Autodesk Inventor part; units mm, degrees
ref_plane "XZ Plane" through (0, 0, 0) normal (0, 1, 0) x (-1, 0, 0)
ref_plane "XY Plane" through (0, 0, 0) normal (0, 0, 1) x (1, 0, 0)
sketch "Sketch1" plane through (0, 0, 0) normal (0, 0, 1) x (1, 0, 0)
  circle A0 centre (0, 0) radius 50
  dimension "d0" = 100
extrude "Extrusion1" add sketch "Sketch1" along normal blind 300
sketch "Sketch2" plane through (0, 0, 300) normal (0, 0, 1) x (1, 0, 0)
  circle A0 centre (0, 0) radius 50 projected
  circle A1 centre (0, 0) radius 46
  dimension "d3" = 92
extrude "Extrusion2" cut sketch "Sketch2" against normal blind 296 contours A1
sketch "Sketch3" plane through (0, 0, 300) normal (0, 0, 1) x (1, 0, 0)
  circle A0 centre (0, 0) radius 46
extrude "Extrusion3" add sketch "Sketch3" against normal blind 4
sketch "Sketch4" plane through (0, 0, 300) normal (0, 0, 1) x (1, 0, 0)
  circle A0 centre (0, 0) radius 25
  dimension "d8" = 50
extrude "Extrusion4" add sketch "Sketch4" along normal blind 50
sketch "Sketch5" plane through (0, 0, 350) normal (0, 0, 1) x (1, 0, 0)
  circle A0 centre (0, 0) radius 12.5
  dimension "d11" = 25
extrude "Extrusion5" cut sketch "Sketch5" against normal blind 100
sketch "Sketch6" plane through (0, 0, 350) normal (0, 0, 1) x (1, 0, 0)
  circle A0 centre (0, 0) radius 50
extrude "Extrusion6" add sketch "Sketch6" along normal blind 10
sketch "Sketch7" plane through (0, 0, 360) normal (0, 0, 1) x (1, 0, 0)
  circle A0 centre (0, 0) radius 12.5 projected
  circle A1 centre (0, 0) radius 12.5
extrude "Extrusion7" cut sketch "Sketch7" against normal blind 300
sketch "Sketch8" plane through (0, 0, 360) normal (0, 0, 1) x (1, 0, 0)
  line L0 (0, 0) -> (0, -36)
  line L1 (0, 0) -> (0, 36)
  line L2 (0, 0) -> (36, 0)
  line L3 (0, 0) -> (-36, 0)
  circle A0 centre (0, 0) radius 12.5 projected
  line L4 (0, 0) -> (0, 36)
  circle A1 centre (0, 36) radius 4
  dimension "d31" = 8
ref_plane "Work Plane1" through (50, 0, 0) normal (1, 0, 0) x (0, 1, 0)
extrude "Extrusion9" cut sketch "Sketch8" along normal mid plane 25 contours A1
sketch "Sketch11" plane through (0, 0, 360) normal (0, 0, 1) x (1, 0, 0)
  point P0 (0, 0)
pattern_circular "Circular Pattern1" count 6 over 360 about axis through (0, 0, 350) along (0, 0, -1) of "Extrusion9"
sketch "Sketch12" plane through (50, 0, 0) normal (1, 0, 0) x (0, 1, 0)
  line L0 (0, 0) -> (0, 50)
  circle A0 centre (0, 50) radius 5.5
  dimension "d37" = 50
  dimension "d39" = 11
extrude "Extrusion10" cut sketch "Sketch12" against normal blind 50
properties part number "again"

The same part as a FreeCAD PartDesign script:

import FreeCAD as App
import Part
import Sketcher
Q = App.Units.Quantity

doc = App.newDocument("Part")
body = doc.addObject("PartDesign::Body", "Body")

# Sketch on XY plane
sketch1 = body.newObject("Sketcher::SketchObject", "Sketch")
sketch1.AttachmentSupport = (doc.getObject("XY_Plane"), [""])
sketch1.MapMode = "FlatFace"
sketch1.addGeometry(Part.Circle(App.Vector(0, 0, 0), App.Vector(0, 0, 1), 50), False)
sketch1.addConstraint(Sketcher.Constraint("Coincident", 0, 3, -1, 1))
sketch1.addConstraint(Sketcher.Constraint("Diameter", 0, Q("100 mm")))
pad1 = body.newObject("PartDesign::Pad", "Pad")
pad1.Profile = sketch1
pad1.Length = 300

# Sketch on XY plane
sketch2 = body.newObject("Sketcher::SketchObject", "Sketch001")
sketch2.AttachmentSupport = (doc.getObject("XY_Plane"), [""])
sketch2.MapMode = "FlatFace"
sketch2.AttachmentOffset = App.Placement(App.Vector(0, 0, 300), App.Rotation())
sketch2.addGeometry(Part.Circle(App.Vector(0, 0, 0), App.Vector(0, 0, 1), 46), False)
sketch2.addConstraint(Sketcher.Constraint("Coincident", 0, 3, -1, 1))
sketch2.addConstraint(Sketcher.Constraint("Diameter", 0, Q("92 mm")))
pocket1 = body.newObject("PartDesign::Pocket", "Pocket")
pocket1.Profile = sketch2
pocket1.Length = 296

# Sketch on XY plane
sketch3 = body.newObject("Sketcher::SketchObject", "Sketch002")
sketch3.AttachmentSupport = (doc.getObject("XY_Plane"), [""])
sketch3.MapMode = "FlatFace"
sketch3.AttachmentOffset = App.Placement(App.Vector(0, 0, 300), App.Rotation())
sketch3.addGeometry(Part.Circle(App.Vector(0, 0, 0), App.Vector(0, 0, 1), 46), False)
sketch3.addConstraint(Sketcher.Constraint("Coincident", 0, 3, -1, 1))
sketch3.addConstraint(Sketcher.Constraint("Diameter", 0, Q("92 mm")))
pad2 = body.newObject("PartDesign::Pad", "Pad001")
pad2.Profile = sketch3
pad2.Length = 4
pad2.Reversed = True

# Sketch on XY plane
sketch4 = body.newObject("Sketcher::SketchObject", "Sketch003")
sketch4.AttachmentSupport = (doc.getObject("XY_Plane"), [""])
sketch4.MapMode = "FlatFace"
sketch4.AttachmentOffset = App.Placement(App.Vector(0, 0, 300), App.Rotation())
sketch4.addGeometry(Part.Circle(App.Vector(0, 0, 0), App.Vector(0, 0, 1), 25), False)
sketch4.addConstraint(Sketcher.Constraint("Coincident", 0, 3, -1, 1))
sketch4.addConstraint(Sketcher.Constraint("Diameter", 0, Q("50 mm")))
pad3 = body.newObject("PartDesign::Pad", "Pad002")
pad3.Profile = sketch4
pad3.Length = 50

# Sketch on XY plane
sketch5 = body.newObject("Sketcher::SketchObject", "Sketch004")
sketch5.AttachmentSupport = (doc.getObject("XY_Plane"), [""])
sketch5.MapMode = "FlatFace"
sketch5.AttachmentOffset = App.Placement(App.Vector(0, 0, 350), App.Rotation())
sketch5.addGeometry(Part.Circle(App.Vector(0, 0, 0), App.Vector(0, 0, 1), 12), False)
sketch5.addConstraint(Sketcher.Constraint("Coincident", 0, 3, -1, 1))
sketch5.addConstraint(Sketcher.Constraint("Diameter", 0, Q("25 mm")))
pocket2 = body.newObject("PartDesign::Pocket", "Pocket001")
pocket2.Profile = sketch5
pocket2.Length = 100

# Sketch on XY plane
sketch6 = body.newObject("Sketcher::SketchObject", "Sketch005")
sketch6.AttachmentSupport = (doc.getObject("XY_Plane"), [""])
sketch6.MapMode = "FlatFace"
sketch6.AttachmentOffset = App.Placement(App.Vector(0, 0, 350), App.Rotation())
sketch6.addGeometry(Part.Circle(App.Vector(0, 0, 0), App.Vector(0, 0, 1), 50), False)
sketch6.addConstraint(Sketcher.Constraint("Coincident", 0, 3, -1, 1))
sketch6.addConstraint(Sketcher.Constraint("Diameter", 0, Q("100 mm")))
pad4 = body.newObject("PartDesign::Pad", "Pad003")
pad4.Profile = sketch6
pad4.Length = 10

# Sketch on XY plane
sketch7 = body.newObject("Sketcher::SketchObject", "Sketch006")
sketch7.AttachmentSupport = (doc.getObject("XY_Plane"), [""])
sketch7.MapMode = "FlatFace"
sketch7.AttachmentOffset = App.Placement(App.Vector(0, 0, 360), App.Rotation())
sketch7.addGeometry(Part.Circle(App.Vector(0, 0, 0), App.Vector(0, 0, 1), 12), False)
sketch7.addConstraint(Sketcher.Constraint("Coincident", 0, 3, -1, 1))
sketch7.addConstraint(Sketcher.Constraint("Diameter", 0, Q("25 mm")))
pocket3 = body.newObject("PartDesign::Pocket", "Pocket002")
pocket3.Profile = sketch7
pocket3.Length = 300

# Sketch on XY plane
sketch8 = body.newObject("Sketcher::SketchObject", "Sketch007")
sketch8.AttachmentSupport = (doc.getObject("XY_Plane"), [""])
sketch8.MapMode = "FlatFace"
sketch8.AttachmentOffset = App.Placement(App.Vector(0, 0, 360), App.Rotation())
sketch8.addGeometry(Part.Circle(App.Vector(0, 36, 0), App.Vector(0, 0, 1), 4), False)
sketch8.addConstraint(Sketcher.Constraint("PointOnObject", 0, 3, -2))
sketch8.addConstraint(Sketcher.Constraint("Diameter", 0, Q("8 mm")))
sketch8.addConstraint(Sketcher.Constraint("DistanceY", -1, 1, 0, 3, Q("36 mm")))
pocket4 = body.newObject("PartDesign::Pocket", "Pocket003")
pocket4.Profile = sketch8
pocket4.Length = 25
pocket4.Midplane = True
doc.recompute()

polarpattern = body.newObject("PartDesign::PolarPattern", "PolarPattern")
polarpattern.Originals = [pocket4]
polarpattern.Axis = (doc.getObject("Z_Axis"), [""])
polarpattern.Angle = 360
polarpattern.Occurrences = 6
body.Tip = polarpattern

# Sketch on YZ plane
sketch9 = body.newObject("Sketcher::SketchObject", "Sketch008")
sketch9.AttachmentSupport = (doc.getObject("YZ_Plane"), [""])
sketch9.MapMode = "FlatFace"
sketch9.AttachmentOffset = App.Placement(App.Vector(0, 0, 50), App.Rotation())
sketch9.addGeometry(Part.Circle(App.Vector(0, 50, 0), App.Vector(0, 0, 1), 6), False)
sketch9.addConstraint(Sketcher.Constraint("PointOnObject", 0, 3, -2))
sketch9.addConstraint(Sketcher.Constraint("Diameter", 0, Q("11 mm")))
sketch9.addConstraint(Sketcher.Constraint("DistanceY", -1, 1, 0, 3, Q("50 mm")))
pocket5 = body.newObject("PartDesign::Pocket", "Pocket004")
pocket5.Profile = sketch9
pocket5.Length = 50

doc.recompute()
